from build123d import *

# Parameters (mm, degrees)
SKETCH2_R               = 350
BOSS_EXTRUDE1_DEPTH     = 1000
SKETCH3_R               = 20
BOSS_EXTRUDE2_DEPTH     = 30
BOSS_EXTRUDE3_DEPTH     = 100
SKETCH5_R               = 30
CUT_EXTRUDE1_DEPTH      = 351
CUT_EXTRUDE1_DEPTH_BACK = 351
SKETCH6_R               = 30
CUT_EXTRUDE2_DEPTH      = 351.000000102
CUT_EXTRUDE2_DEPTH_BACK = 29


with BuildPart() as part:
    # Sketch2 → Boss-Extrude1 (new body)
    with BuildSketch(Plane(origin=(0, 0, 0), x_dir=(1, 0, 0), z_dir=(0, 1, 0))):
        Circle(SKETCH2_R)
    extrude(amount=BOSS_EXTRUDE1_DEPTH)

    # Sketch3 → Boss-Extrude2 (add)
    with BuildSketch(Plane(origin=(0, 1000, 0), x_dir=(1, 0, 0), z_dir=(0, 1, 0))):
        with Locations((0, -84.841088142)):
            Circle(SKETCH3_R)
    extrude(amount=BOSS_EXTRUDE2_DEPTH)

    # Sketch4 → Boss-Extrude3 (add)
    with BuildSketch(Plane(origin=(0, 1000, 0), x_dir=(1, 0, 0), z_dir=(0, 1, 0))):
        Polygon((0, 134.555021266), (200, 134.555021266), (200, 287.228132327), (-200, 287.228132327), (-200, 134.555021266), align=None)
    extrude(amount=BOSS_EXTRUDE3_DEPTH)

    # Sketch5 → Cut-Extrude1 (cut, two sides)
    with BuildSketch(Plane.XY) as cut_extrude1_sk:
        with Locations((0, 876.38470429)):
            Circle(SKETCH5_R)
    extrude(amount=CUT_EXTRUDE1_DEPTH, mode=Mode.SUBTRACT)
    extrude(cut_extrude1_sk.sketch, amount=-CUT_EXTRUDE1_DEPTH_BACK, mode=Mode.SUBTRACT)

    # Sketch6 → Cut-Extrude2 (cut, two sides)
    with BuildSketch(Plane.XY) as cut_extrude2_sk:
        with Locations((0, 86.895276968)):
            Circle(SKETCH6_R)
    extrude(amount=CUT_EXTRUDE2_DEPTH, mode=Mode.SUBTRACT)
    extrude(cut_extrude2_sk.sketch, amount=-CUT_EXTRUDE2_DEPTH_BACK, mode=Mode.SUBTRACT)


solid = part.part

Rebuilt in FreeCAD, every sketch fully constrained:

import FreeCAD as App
import Part
import Sketcher

V = App.Vector
Q = App.Units.Quantity


def add_polygon(sketch, points):
    """Adds a closed chain of lines whose ends are joined by coincident constraints."""
    first, n = sketch.GeometryCount, len(points)
    for a, b in zip(points, points[1:] + points[:1]):
        sketch.addGeometry(Part.LineSegment(App.Vector(*a, 0), App.Vector(*b, 0)), False)
    for i in range(n):
        sketch.addConstraint(Sketcher.Constraint("Coincident", first + i, 2, first + (i + 1) % n, 1))

doc = App.newDocument("Part")
body = doc.addObject("PartDesign::Body", "Body")

# Sketch on XZ plane
sketch1 = body.newObject("Sketcher::SketchObject", "Sketch")
sketch1.AttachmentSupport = (doc.getObject("XZ_Plane"), [""])
sketch1.MapMode = "FlatFace"
sketch1.addGeometry(Part.Circle(V(0, 0, 0), V(0, 0, 1), 350), False)
sketch1.addConstraint([
    Sketcher.Constraint("Coincident", 0, 3, -1, 1),
    Sketcher.Constraint("Diameter", 0, Q("700 mm")),
])
pad1 = body.newObject("PartDesign::Pad", "Pad")
pad1.Profile = sketch1
pad1.Length = 1000
pad1.Reversed = True

# Sketch on XZ plane
sketch2 = body.newObject("Sketcher::SketchObject", "Sketch001")
sketch2.AttachmentSupport = (doc.getObject("XZ_Plane"), [""])
sketch2.MapMode = "FlatFace"
sketch2.AttachmentOffset = App.Placement(V(0, 0, -1000), App.Rotation())
sketch2.addGeometry(Part.Circle(V(0, 85, 0), V(0, 0, 1), 20), False)
sketch2.addConstraint([
    Sketcher.Constraint("PointOnObject", 0, 3, -2),
    Sketcher.Constraint("Diameter", 0, Q("40 mm")),
    Sketcher.Constraint("DistanceY", -1, 1, 0, 3, Q("84.841088 mm")),
])
pad2 = body.newObject("PartDesign::Pad", "Pad001")
pad2.Profile = sketch2
pad2.Length = 30
pad2.Reversed = True

# Sketch on XZ plane
sketch3 = body.newObject("Sketcher::SketchObject", "Sketch002")
sketch3.AttachmentSupport = (doc.getObject("XZ_Plane"), [""])
sketch3.MapMode = "FlatFace"
sketch3.AttachmentOffset = App.Placement(V(0, 0, -1000), App.Rotation())
add_polygon(sketch3, [(200, -135), (200, -287), (-200, -287), (-200, -135)])  # lines 0-3
sketch3.addConstraint([
    Sketcher.Constraint("Vertical", 0),
    Sketcher.Constraint("Horizontal", 1),
    Sketcher.Constraint("Vertical", 2),
    Sketcher.Constraint("Horizontal", 3),
    Sketcher.Constraint("DistanceX", 1, 2, 1, 1, Q("400 mm")),
    Sketcher.Constraint("DistanceX", -1, 1, 0, 2, Q("200 mm")),
    Sketcher.Constraint("DistanceY", 0, 2, 0, 1, Q("152.673111 mm")),
    Sketcher.Constraint("DistanceY", 2, 2, -1, 1, Q("134.555021 mm")),
])
pad3 = body.newObject("PartDesign::Pad", "Pad002")
pad3.Profile = sketch3
pad3.Length = 100
pad3.Reversed = True

# Sketch on XY plane
sketch4 = body.newObject("Sketcher::SketchObject", "Sketch003")
sketch4.AttachmentSupport = (doc.getObject("XY_Plane"), [""])
sketch4.MapMode = "FlatFace"
sketch4.addGeometry(Part.Circle(V(0, 876, 0), V(0, 0, 1), 30), False)
sketch4.addConstraint([
    Sketcher.Constraint("PointOnObject", 0, 3, -2),
    Sketcher.Constraint("Diameter", 0, Q("60 mm")),
    Sketcher.Constraint("DistanceY", -1, 1, 0, 3, Q("876.384704 mm")),
])
pocket1 = body.newObject("PartDesign::Pocket", "Pocket")
pocket1.Profile = sketch4
pocket1.Type = "ThroughAll"
pocket1.Midplane = True

# Sketch on XY plane
sketch5 = body.newObject("Sketcher::SketchObject", "Sketch004")
sketch5.AttachmentSupport = (doc.getObject("XY_Plane"), [""])
sketch5.MapMode = "FlatFace"
sketch5.addGeometry(Part.Circle(V(0, 87, 0), V(0, 0, 1), 30), False)
sketch5.addConstraint([
    Sketcher.Constraint("PointOnObject", 0, 3, -2),
    Sketcher.Constraint("Diameter", 0, Q("60 mm")),
    Sketcher.Constraint("DistanceY", -1, 1, 0, 3, Q("86.895277 mm")),
])
pocket2 = body.newObject("PartDesign::Pocket", "Pocket001")
pocket2.Profile = sketch5
pocket2.Type = "TwoLengths"
pocket2.Length = 351
pocket2.Length2 = 29
pocket2.Reversed = True

doc.recompute()
